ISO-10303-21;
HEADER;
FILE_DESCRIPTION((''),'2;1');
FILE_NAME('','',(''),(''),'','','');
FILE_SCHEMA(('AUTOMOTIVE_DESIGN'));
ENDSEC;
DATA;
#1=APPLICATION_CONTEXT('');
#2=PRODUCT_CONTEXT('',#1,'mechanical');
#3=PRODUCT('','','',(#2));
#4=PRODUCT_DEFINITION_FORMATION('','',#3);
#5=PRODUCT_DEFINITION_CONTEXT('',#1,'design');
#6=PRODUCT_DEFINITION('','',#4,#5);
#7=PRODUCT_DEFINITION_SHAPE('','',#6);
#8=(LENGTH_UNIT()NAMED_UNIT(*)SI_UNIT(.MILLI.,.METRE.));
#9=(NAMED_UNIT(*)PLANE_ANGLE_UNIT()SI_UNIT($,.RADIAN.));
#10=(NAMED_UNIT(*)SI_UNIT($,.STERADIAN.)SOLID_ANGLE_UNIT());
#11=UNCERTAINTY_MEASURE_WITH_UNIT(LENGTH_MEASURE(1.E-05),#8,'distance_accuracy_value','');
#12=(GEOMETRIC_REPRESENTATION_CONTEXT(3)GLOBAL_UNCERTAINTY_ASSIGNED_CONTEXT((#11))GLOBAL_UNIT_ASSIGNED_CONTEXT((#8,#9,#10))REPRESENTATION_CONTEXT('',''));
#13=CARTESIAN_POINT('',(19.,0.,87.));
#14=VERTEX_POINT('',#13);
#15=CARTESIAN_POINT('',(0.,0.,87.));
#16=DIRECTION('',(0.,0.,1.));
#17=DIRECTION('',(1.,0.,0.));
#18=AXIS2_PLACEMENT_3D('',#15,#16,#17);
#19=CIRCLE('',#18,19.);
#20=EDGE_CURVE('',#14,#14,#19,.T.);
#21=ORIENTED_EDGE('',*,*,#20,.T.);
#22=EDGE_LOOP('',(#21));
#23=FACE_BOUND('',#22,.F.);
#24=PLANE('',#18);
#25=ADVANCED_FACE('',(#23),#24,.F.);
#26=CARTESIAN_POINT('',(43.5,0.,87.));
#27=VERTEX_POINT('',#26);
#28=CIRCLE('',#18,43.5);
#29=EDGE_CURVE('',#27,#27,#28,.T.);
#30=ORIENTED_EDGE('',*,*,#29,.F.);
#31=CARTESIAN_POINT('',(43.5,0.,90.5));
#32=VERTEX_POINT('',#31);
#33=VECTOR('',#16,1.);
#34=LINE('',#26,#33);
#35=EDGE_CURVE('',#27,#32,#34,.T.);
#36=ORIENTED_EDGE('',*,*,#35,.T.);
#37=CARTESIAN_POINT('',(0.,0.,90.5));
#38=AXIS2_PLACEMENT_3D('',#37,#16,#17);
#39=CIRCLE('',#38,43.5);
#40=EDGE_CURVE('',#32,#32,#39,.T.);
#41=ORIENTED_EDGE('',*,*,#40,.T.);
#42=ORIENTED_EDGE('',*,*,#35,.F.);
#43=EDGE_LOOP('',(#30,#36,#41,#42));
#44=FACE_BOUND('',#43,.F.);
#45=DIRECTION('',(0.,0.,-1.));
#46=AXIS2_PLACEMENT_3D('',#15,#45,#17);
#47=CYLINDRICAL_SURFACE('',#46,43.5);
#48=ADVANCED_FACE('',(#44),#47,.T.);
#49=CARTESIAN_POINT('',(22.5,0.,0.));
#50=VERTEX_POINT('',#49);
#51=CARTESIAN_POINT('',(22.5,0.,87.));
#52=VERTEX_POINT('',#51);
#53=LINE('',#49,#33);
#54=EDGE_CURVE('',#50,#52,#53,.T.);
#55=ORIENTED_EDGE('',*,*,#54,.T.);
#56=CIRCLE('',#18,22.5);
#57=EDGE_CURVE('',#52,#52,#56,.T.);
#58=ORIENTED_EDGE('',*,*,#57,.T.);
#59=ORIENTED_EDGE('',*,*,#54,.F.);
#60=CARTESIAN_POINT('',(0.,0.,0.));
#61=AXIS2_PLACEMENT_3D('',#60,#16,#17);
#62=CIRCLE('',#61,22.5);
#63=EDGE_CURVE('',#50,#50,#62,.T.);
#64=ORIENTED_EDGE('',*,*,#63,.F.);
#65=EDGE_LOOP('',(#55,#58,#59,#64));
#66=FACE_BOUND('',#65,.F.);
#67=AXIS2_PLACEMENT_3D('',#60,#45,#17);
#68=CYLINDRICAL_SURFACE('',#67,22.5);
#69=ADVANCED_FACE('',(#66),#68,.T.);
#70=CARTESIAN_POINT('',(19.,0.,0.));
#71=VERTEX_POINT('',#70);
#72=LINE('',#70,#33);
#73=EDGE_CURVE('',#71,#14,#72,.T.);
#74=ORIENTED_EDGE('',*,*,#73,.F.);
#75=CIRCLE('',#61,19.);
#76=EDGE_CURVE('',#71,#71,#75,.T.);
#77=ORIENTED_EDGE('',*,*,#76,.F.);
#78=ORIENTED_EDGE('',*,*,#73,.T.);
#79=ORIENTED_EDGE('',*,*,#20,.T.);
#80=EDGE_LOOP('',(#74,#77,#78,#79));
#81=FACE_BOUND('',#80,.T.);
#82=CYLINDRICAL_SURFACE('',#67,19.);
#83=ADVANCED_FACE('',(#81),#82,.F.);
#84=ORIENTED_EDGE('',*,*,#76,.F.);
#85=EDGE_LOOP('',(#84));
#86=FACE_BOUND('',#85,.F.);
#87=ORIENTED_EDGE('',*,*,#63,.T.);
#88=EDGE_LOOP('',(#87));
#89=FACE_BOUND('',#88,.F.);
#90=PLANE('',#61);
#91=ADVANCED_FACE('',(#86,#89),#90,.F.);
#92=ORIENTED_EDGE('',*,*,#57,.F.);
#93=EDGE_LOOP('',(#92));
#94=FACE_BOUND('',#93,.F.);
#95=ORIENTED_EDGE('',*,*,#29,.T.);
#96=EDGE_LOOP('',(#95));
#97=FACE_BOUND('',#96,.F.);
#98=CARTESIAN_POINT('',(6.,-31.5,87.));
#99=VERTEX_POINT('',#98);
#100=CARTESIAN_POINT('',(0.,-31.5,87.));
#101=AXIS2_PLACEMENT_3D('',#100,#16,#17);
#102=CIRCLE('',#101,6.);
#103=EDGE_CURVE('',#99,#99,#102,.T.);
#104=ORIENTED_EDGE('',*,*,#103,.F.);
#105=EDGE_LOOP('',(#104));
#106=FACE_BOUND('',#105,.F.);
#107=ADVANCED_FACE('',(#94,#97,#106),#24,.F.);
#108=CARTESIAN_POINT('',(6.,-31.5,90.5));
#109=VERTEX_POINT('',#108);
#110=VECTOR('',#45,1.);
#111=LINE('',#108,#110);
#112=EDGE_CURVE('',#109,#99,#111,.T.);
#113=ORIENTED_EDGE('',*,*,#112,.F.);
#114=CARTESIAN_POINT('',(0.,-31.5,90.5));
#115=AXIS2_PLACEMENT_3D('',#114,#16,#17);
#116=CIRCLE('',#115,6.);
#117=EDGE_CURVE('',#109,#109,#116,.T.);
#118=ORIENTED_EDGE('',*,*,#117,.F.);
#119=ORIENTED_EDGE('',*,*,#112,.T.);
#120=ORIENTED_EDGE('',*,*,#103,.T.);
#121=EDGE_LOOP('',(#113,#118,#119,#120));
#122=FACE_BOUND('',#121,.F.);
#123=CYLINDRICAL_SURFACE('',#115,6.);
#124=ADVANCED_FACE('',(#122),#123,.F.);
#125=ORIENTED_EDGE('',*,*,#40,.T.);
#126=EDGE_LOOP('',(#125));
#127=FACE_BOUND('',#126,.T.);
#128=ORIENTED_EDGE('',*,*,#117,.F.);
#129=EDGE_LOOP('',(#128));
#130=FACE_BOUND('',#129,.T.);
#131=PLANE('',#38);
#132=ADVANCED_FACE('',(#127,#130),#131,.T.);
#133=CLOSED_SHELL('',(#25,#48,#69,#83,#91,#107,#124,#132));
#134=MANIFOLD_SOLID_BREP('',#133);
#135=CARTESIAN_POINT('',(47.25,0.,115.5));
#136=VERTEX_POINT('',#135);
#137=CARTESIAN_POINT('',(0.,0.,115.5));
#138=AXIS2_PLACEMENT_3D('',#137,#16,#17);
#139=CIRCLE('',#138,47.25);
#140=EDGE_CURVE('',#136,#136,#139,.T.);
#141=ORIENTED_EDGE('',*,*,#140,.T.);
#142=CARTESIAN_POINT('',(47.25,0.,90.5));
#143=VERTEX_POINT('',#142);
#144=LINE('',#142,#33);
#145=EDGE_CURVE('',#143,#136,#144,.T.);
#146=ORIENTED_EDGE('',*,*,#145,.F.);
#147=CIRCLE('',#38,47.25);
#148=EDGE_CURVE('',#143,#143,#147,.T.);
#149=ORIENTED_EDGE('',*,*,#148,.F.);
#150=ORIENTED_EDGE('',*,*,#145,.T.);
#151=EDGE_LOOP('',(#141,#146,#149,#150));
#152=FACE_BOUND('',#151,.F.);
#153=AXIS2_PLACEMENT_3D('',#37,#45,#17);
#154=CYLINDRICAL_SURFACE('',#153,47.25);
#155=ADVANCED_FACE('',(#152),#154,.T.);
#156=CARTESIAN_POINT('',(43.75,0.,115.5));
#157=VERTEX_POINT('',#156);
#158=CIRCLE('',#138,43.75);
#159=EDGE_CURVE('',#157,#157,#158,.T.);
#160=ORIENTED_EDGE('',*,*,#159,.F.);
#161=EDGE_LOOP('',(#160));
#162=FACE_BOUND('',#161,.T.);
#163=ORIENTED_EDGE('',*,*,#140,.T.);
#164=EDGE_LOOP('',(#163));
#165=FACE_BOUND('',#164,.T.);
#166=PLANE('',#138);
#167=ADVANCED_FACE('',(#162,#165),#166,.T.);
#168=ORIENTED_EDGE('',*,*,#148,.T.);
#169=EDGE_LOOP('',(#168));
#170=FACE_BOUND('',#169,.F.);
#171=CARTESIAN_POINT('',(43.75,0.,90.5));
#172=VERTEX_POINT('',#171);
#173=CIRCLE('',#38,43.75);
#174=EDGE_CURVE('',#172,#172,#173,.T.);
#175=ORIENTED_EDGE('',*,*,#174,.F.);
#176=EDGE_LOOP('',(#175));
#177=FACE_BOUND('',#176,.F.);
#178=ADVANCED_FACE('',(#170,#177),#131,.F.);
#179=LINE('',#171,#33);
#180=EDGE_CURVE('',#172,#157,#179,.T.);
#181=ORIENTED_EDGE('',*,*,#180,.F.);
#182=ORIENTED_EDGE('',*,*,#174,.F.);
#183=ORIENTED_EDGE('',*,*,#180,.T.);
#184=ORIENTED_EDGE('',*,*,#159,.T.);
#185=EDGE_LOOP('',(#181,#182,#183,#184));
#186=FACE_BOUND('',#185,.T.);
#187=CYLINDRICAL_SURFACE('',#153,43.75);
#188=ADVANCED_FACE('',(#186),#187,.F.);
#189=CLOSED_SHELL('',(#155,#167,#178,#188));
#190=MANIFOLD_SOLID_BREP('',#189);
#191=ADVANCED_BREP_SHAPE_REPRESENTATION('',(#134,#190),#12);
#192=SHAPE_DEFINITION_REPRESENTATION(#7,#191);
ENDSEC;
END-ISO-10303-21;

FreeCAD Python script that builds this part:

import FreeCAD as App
import Part
import Sketcher

V = App.Vector
Q = App.Units.Quantity

doc = App.newDocument("Part")
body = doc.addObject("PartDesign::Body", "Body")

sketch1 = body.newObject("Sketcher::SketchObject", "Sketch")
sketch1.AttachmentSupport = (doc.getObject("XY_Plane"), [""])
sketch1.MapMode = "FlatFace"
sketch1.addGeometry(Part.Circle(V(0, 0, 0), V(0, 0, 1), 22.5), False)
sketch1.addGeometry(Part.Circle(V(0, 0, 0), V(0, 0, 1), 19), False)
sketch1.addConstraint(Sketcher.Constraint("Coincident", 0, 3, -1, 1))
sketch1.addConstraint(Sketcher.Constraint("Coincident", 1, 3, -1, 1))
sketch1.addConstraint(Sketcher.Constraint("Diameter", 0, Q("45 mm")))
sketch1.addConstraint(Sketcher.Constraint("Diameter", 1, Q("38 mm")))
pad1 = body.newObject("PartDesign::Pad", "Pad")
pad1.Profile = sketch1
pad1.Length = 87

sketch2 = body.newObject("Sketcher::SketchObject", "Sketch001")
sketch2.AttachmentSupport = (doc.getObject("XY_Plane"), [""])
sketch2.MapMode = "FlatFace"
sketch2.AttachmentOffset = App.Placement(V(0, 0, 87), App.Rotation())
sketch2.addGeometry(Part.Circle(V(0, 0, 0), V(0, 0, 1), 43.5), False)
sketch2.addConstraint(Sketcher.Constraint("Coincident", 0, 3, -1, 1))
sketch2.addConstraint(Sketcher.Constraint("Diameter", 0, Q("87 mm")))
pad2 = body.newObject("PartDesign::Pad", "Pad001")
pad2.Profile = sketch2
pad2.Length = 3.5

sketch3 = body.newObject("Sketcher::SketchObject", "Sketch002")
sketch3.AttachmentSupport = (doc.getObject("XY_Plane"), [""])
sketch3.MapMode = "FlatFace"
sketch3.AttachmentOffset = App.Placement(V(0, 0, 90.5), App.Rotation())
sketch3.addGeometry(Part.Circle(V(0, -31.5, 0), V(0, 0, 1), 6), False)
sketch3.addConstraint(Sketcher.Constraint("PointOnObject", 0, 3, -2))
sketch3.addConstraint(Sketcher.Constraint("Diameter", 0, Q("12 mm")))
sketch3.addConstraint(Sketcher.Constraint("DistanceY", 0, 3, -1, 1, Q("31.5 mm")))
pocket1 = body.newObject("PartDesign::Pocket", "Pocket")
pocket1.Profile = sketch3
pocket1.Type = "ThroughAll"
body2 = doc.addObject("PartDesign::Body", "Body001")

sketch4 = body2.newObject("Sketcher::SketchObject", "Sketch003")
sketch4.AttachmentSupport = (doc.getObject("XY_Plane001"), [""])
sketch4.MapMode = "FlatFace"
sketch4.AttachmentOffset = App.Placement(V(0, 0, 90.5), App.Rotation())
sketch4.addGeometry(Part.Circle(V(0, 0, 0), V(0, 0, 1), 47.25), False)
sketch4.addGeometry(Part.Circle(V(0, 0, 0), V(0, 0, 1), 43.75), False)
sketch4.addConstraint(Sketcher.Constraint("Coincident", 0, 3, -1, 1))
sketch4.addConstraint(Sketcher.Constraint("Coincident", 1, 3, -1, 1))
sketch4.addConstraint(Sketcher.Constraint("Diameter", 0, Q("94.5 mm")))
sketch4.addConstraint(Sketcher.Constraint("Diameter", 1, Q("87.5 mm")))
pad3 = body2.newObject("PartDesign::Pad", "Pad002")
pad3.Profile = sketch4
pad3.Length = 25

doc.recompute()
